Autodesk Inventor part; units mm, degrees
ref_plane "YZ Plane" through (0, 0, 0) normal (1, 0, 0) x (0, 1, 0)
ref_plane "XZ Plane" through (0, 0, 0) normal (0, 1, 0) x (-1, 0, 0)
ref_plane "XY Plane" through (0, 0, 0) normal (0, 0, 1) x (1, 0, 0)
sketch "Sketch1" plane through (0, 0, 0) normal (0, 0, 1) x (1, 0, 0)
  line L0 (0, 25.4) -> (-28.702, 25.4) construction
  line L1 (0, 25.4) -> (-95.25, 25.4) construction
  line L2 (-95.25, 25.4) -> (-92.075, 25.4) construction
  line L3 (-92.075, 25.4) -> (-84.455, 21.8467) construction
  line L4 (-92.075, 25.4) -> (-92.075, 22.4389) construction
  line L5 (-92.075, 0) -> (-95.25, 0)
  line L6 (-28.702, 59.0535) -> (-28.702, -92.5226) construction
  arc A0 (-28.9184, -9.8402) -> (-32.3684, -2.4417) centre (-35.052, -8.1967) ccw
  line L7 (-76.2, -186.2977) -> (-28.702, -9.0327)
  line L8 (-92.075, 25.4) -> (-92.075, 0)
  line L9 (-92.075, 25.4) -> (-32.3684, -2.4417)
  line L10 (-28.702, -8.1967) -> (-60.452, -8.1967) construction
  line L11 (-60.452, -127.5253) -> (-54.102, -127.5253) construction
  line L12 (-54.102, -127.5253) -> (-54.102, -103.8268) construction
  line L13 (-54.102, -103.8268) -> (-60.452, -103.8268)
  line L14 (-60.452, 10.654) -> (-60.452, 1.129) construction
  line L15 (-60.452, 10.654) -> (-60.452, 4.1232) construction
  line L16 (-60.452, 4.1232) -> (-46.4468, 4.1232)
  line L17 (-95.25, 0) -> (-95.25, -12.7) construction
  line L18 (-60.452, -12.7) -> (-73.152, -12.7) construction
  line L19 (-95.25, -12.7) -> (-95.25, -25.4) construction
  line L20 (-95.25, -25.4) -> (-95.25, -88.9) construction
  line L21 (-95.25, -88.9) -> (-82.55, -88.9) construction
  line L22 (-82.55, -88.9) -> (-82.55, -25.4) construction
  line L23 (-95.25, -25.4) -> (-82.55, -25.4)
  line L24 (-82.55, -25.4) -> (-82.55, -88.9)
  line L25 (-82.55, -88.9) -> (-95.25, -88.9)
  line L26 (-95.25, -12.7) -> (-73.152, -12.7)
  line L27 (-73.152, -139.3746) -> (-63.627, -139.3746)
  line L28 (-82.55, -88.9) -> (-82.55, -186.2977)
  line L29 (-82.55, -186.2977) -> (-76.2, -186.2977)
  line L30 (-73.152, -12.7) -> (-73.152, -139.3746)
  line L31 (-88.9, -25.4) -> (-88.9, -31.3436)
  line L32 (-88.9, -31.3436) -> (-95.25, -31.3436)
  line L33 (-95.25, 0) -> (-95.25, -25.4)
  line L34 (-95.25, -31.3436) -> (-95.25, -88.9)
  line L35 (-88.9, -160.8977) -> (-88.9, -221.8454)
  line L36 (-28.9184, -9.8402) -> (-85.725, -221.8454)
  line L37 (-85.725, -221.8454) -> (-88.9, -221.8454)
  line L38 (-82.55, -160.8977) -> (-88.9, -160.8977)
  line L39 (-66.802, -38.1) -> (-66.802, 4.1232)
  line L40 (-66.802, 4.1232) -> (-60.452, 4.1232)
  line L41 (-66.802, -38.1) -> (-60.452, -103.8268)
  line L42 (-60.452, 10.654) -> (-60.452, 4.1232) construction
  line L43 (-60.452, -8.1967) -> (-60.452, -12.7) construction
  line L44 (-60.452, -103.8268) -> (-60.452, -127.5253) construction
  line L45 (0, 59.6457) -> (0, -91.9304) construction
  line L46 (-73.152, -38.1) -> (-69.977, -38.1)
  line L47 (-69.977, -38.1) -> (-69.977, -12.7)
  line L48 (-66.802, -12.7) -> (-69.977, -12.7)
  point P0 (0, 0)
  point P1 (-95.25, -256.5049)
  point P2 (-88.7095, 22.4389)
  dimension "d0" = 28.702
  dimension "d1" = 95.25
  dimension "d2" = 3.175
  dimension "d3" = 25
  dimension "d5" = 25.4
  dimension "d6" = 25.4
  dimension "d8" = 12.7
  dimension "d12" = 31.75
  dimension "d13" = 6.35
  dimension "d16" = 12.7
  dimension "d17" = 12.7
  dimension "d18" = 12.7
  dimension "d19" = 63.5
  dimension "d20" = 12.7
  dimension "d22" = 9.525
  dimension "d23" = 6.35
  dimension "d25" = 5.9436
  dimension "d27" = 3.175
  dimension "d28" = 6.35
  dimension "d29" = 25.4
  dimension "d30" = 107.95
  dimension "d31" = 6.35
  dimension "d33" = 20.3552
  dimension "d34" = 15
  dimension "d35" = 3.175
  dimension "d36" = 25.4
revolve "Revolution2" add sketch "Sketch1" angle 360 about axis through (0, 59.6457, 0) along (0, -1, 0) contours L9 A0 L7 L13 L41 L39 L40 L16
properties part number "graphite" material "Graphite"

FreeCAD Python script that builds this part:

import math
import FreeCAD as App
import Part
import Sketcher
Q = App.Units.Quantity

doc = App.newDocument("Part")
body = doc.addObject("PartDesign::Body", "Body")

# Sketch on XY plane
sketch1 = body.newObject("Sketcher::SketchObject", "Sketch")
sketch1.AttachmentSupport = (doc.getObject("XY_Plane"), [""])
sketch1.MapMode = "FlatFace"
sketch1.addGeometry([
    Part.LineSegment(App.Vector(-32.3684, -2.4417, 0), App.Vector(-46.446808, 4.123183, 0)),  # 0
    Part.LineSegment(App.Vector(-46.4468, 4.1232, 0), App.Vector(-66.802, 4.1232, 0)),  # 1
    Part.LineSegment(App.Vector(-66.802, 4.1232, 0), App.Vector(-66.802, -38.1, 0)),  # 2
    Part.LineSegment(App.Vector(-66.802, -38.1, 0), App.Vector(-60.452, -103.8268, 0)),  # 3
    Part.LineSegment(App.Vector(-60.452, -103.8268, 0), App.Vector(-54.102, -103.8268, 0)),  # 4
    Part.LineSegment(App.Vector(-54.101996, -103.826801, 0), App.Vector(-28.918371, -9.840208, 0)),  # 5
    Part.ArcOfCircle(Part.Circle(App.Vector(-35.052, -8.1967, 0), App.Vector(0, 0, 1), 6.349972), math.radians(-15.00006), math.radians(65.000005)),  # 6
], False)
sketch1.addConstraint([
    Sketcher.Constraint("Coincident", 0, 2, 1, 1),
    Sketcher.Constraint("Coincident", 1, 2, 2, 1),
    Sketcher.Constraint("Coincident", 2, 2, 3, 1),
    Sketcher.Constraint("Coincident", 3, 2, 4, 1),
    Sketcher.Constraint("Coincident", 4, 2, 5, 1),
    Sketcher.Constraint("Tangent", 5, 2, 6, 1),
    Sketcher.Constraint("Tangent", 6, 2, 0, 1),
    Sketcher.Constraint("Horizontal", 1),
    Sketcher.Constraint("Vertical", 2),
    Sketcher.Constraint("Horizontal", 4),
    Sketcher.Constraint("Radius", 6, Q("0.25 in")),
    Sketcher.Constraint("DistanceX", 3, 2, 6, 3, Q("1 in")),
    Sketcher.Constraint("DistanceX", 4, 1, 4, 2, Q("0.25 in")),
    Sketcher.Constraint("DistanceX", 2, 2, 4, 2, Q("0.5 in")),
    Sketcher.Constraint("DistanceY", 3, 2, 1, 2, Q("4.25 in")),
    Sketcher.Constraint("Angle", 0, Q("155 deg")),
    Sketcher.Constraint("Angle", 5, Q("75 deg")),
    Sketcher.Constraint("DistanceY", 2, 2, -1, 1, Q("1.5 in")),
    Sketcher.Constraint("DistanceX", 6, 3, -1, 1, Q("1.38 in")),
    Sketcher.Constraint("DistanceY", 2, 2, 2, 1, Q("42.2232 mm")),
])
revolution = body.newObject("PartDesign::Revolution", "Revolution")
revolution.Profile = sketch1
revolution.ReferenceAxis = (sketch1, ["V_Axis"])
revolution.Angle = 360

doc.recompute()
